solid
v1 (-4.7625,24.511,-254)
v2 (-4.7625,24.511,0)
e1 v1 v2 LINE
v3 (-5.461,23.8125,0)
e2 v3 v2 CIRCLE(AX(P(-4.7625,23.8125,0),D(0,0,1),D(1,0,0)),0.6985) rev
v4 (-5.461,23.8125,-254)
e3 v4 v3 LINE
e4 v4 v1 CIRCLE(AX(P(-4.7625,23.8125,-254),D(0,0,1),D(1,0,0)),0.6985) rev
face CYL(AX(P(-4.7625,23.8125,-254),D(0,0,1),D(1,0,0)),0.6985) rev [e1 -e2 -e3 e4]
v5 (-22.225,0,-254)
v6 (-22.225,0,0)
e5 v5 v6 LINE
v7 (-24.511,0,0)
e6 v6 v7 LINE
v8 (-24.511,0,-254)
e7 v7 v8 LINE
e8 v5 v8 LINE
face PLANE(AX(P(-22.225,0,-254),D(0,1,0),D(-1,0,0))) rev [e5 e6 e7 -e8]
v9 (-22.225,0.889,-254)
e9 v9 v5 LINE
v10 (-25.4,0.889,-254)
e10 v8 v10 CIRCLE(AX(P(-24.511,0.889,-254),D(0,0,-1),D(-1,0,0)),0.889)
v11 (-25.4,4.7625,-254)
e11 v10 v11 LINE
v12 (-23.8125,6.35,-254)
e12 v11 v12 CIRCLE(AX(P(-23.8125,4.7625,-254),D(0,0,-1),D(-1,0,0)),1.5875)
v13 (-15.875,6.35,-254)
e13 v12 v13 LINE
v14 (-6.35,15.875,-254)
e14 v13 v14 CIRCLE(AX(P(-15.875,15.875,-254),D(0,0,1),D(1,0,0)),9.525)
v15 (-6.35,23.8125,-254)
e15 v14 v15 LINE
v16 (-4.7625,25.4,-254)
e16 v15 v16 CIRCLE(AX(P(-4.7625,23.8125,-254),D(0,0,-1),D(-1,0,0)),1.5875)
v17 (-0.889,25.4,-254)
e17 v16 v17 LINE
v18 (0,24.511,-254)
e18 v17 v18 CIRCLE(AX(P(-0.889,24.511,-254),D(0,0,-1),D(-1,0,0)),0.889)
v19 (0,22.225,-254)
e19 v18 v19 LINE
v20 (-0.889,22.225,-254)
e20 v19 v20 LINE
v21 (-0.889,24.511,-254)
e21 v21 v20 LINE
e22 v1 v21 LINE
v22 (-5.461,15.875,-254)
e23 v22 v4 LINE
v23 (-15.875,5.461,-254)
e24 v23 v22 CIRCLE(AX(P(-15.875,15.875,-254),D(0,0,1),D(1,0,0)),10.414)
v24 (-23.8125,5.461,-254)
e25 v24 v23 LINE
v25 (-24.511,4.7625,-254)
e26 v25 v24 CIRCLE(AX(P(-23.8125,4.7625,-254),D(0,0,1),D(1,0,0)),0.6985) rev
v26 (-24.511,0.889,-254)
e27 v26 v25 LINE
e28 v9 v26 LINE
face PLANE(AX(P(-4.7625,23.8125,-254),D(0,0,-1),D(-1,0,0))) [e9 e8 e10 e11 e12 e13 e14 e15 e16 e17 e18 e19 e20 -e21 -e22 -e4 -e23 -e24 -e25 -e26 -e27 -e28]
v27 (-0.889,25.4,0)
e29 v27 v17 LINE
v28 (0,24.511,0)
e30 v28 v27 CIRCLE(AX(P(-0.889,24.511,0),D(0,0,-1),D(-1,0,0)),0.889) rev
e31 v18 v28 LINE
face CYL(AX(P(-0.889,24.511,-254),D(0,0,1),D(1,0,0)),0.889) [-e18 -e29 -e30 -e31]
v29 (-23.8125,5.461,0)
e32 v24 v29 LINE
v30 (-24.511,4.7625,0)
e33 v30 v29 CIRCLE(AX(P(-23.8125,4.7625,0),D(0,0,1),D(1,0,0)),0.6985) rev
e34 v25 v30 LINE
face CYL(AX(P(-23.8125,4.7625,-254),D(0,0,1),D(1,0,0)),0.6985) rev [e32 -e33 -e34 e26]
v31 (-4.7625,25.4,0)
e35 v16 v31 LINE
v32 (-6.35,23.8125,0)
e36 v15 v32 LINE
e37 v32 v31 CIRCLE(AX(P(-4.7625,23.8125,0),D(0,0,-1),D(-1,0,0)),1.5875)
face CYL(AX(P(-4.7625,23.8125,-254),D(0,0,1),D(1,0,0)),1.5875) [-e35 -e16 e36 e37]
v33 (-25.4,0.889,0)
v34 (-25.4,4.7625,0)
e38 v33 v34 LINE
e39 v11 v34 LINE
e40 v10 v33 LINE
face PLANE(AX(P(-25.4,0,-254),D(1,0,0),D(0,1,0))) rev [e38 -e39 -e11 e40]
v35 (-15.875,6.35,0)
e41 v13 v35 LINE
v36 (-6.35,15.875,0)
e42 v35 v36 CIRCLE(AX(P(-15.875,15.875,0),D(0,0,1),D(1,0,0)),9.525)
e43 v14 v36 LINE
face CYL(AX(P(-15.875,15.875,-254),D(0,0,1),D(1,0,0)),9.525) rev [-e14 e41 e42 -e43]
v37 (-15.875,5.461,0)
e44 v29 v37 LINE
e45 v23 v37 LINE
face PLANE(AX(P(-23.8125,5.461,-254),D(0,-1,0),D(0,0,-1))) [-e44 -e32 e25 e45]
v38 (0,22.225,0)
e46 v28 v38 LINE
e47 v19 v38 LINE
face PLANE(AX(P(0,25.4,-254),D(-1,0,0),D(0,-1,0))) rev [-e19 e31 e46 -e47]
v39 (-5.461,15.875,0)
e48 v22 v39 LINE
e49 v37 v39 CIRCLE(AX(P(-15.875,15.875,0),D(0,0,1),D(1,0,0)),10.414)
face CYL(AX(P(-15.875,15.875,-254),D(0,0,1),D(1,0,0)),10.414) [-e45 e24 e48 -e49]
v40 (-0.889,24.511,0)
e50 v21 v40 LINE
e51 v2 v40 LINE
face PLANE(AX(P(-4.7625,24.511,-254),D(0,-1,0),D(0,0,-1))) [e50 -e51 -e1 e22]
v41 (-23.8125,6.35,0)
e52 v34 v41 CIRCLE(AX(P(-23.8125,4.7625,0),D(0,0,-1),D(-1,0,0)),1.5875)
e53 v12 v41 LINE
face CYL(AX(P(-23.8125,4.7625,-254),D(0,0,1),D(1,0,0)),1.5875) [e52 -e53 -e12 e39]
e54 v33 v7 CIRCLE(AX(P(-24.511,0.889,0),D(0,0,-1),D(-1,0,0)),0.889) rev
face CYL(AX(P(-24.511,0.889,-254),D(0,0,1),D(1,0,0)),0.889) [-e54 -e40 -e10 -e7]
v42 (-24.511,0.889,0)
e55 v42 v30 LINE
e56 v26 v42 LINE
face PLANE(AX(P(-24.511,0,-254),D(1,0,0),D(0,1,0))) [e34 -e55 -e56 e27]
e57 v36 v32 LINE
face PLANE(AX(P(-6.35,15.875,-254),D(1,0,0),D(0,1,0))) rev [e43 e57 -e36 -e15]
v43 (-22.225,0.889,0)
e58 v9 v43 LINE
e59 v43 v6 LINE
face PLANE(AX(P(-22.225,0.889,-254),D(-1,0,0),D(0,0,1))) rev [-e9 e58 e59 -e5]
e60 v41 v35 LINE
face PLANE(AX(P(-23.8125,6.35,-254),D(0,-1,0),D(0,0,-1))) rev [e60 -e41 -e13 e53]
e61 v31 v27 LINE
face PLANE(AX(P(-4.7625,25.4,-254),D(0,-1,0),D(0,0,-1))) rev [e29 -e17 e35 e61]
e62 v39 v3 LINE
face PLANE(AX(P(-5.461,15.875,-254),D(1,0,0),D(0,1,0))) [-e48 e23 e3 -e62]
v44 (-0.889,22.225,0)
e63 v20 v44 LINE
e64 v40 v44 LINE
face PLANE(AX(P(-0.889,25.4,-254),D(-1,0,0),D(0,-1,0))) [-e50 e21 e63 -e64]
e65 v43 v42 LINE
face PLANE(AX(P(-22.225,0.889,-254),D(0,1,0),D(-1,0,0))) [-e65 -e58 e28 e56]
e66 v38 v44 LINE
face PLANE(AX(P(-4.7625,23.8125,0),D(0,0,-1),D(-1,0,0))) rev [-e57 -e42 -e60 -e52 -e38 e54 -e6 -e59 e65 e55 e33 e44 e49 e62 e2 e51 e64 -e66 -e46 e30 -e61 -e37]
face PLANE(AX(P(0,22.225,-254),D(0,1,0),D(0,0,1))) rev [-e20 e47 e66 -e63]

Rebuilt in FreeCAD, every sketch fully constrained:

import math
import FreeCAD as App
import Part
import Sketcher
from FreeCAD import Vector
Q = App.Units.Quantity


def edges_at(feature, points):
    """Names of the edges that pass closest to the given points."""
    edges = feature.Shape.Edges
    near = lambda p: min(range(len(edges)), key=lambda i: edges[i].distToShape(Part.Vertex(*p))[0])
    return sorted({f"Edge{near(p) + 1}" for p in points})

doc = App.newDocument("Part")
body = doc.addObject("PartDesign::Body", "Body")

# Sketch on XY plane
sketch1 = body.newObject("Sketcher::SketchObject", "Sketch")
sketch1.AttachmentSupport = (doc.getObject("XY_Plane"), [""])
sketch1.MapMode = "FlatFace"
sketch1.addGeometry([
    Part.LineSegment(Vector(-25.4, 0, 0), Vector(-22.2, 0, 0)),  # 0
    Part.LineSegment(Vector(-22.2, 0, 0), Vector(-22.2, 0.9, 0)),  # 1
    Part.LineSegment(Vector(-22.2, 0.9, 0), Vector(-24.5, 0.9, 0)),  # 2
    Part.LineSegment(Vector(-24.5, 0.9, 0), Vector(-24.5, 4.8, 0)),  # 3
    Part.ArcOfCircle(Part.Circle(Vector(-23.8, 4.8, 0), Vector(0, 0, 1), 0.7), math.radians(90), math.radians(180)),  # 4
    Part.LineSegment(Vector(-23.8, 5.5, 0), Vector(-15.9, 5.5, 0)),  # 5
    Part.ArcOfCircle(Part.Circle(Vector(-15.9, 15.9, 0), Vector(0, 0, 1), 10.4), math.radians(-90), math.radians(0)),  # 6
    Part.LineSegment(Vector(-5.5, 15.9, 0), Vector(-5.5, 23.8, 0)),  # 7
    Part.ArcOfCircle(Part.Circle(Vector(-4.8, 23.8, 0), Vector(0, 0, 1), 0.7), math.radians(90), math.radians(180)),  # 8
    Part.LineSegment(Vector(-4.8, 24.5, 0), Vector(-0.9, 24.5, 0)),  # 9
    Part.LineSegment(Vector(-0.9, 24.5, 0), Vector(-0.9, 22.2, 0)),  # 10
    Part.LineSegment(Vector(-0.9, 22.2, 0), Vector(0, 22.2, 0)),  # 11
    Part.LineSegment(Vector(0, 22.2, 0), Vector(0, 25.4, 0)),  # 12
    Part.LineSegment(Vector(0, 25.4, 0), Vector(-4.8, 25.4, 0)),  # 13
    Part.ArcOfCircle(Part.Circle(Vector(-4.8, 23.8, 0), Vector(0, 0, 1), 1.6), math.radians(90), math.radians(180)),  # 14
    Part.LineSegment(Vector(-6.3, 23.8, 0), Vector(-6.3, 15.9, 0)),  # 15
    Part.ArcOfCircle(Part.Circle(Vector(-15.9, 15.9, 0), Vector(0, 0, 1), 9.5), math.radians(-90), math.radians(0)),  # 16
    Part.LineSegment(Vector(-15.9, 6.3, 0), Vector(-23.8, 6.3, 0)),  # 17
    Part.ArcOfCircle(Part.Circle(Vector(-23.8, 4.8, 0), Vector(0, 0, 1), 1.6), math.radians(90), math.radians(180)),  # 18
    Part.LineSegment(Vector(-25.4, 4.8, 0), Vector(-25.4, 0, 0)),  # 19
], False)
sketch1.addConstraint([
    Sketcher.Constraint("Coincident", 0, 2, 1, 1),
    Sketcher.Constraint("Coincident", 1, 2, 2, 1),
    Sketcher.Constraint("Coincident", 2, 2, 3, 1),
    Sketcher.Constraint("Tangent", 3, 2, 4, 2),
    Sketcher.Constraint("Tangent", 4, 1, 5, 1),
    Sketcher.Constraint("Tangent", 5, 2, 6, 1),
    Sketcher.Constraint("Tangent", 6, 2, 7, 1),
    Sketcher.Constraint("Tangent", 7, 2, 8, 2),
    Sketcher.Constraint("Tangent", 8, 1, 9, 1),
    Sketcher.Constraint("Coincident", 9, 2, 10, 1),
    Sketcher.Constraint("Coincident", 10, 2, 11, 1),
    Sketcher.Constraint("Coincident", 11, 2, 12, 1),
    Sketcher.Constraint("Coincident", 12, 2, 13, 1),
    Sketcher.Constraint("Tangent", 13, 2, 14, 1),
    Sketcher.Constraint("Tangent", 14, 2, 15, 1),
    Sketcher.Constraint("Tangent", 15, 2, 16, 2),
    Sketcher.Constraint("Tangent", 16, 1, 17, 1),
    Sketcher.Constraint("Tangent", 17, 2, 18, 1),
    Sketcher.Constraint("Tangent", 18, 2, 19, 1),
    Sketcher.Constraint("Coincident", 19, 2, 0, 1),
    Sketcher.Constraint("Horizontal", 0),
    Sketcher.Constraint("Vertical", 1),
    Sketcher.Constraint("Horizontal", 2),
    Sketcher.Constraint("Vertical", 3),
    Sketcher.Constraint("Horizontal", 5),
    Sketcher.Constraint("Vertical", 7),
    Sketcher.Constraint("Horizontal", 9),
    Sketcher.Constraint("Vertical", 10),
    Sketcher.Constraint("Horizontal", 11),
    Sketcher.Constraint("Vertical", 12),
    Sketcher.Constraint("Horizontal", 13),
    Sketcher.Constraint("Vertical", 15),
    Sketcher.Constraint("Horizontal", 17),
    Sketcher.Constraint("Vertical", 19),
    Sketcher.Constraint("Coincident", 14, 3, 8, 3),
    Sketcher.Constraint("Coincident", 16, 3, 6, 3),
    Sketcher.Constraint("Coincident", 18, 3, 4, 3),
    Sketcher.Constraint("Equal", 4, 8),
    Sketcher.Constraint("PointOnObject", 0, 2, -1),
    Sketcher.Constraint("PointOnObject", 11, 2, -2),
    Sketcher.Constraint("Equal", 11, 1),
    Sketcher.Constraint("Equal", 9, 3),
    Sketcher.Constraint("Equal", 17, 7),
    Sketcher.Constraint("Equal", 2, 10),
    Sketcher.Constraint("Radius", 6, Q("0.41 in")),
    Sketcher.Constraint("DistanceY", -1, 1, 12, 2, Q("1 in")),
    Sketcher.Constraint("Radius", 14, Q("0.0625 in")),
    Sketcher.Constraint("Radius", 16, Q("0.375 in")),
    Sketcher.Constraint("DistanceX", 2, 2, 2, 1, Q("0.09 in")),
    Sketcher.Constraint("DistanceX", 5, 1, 5, 2, Q("0.3125 in")),
    Sketcher.Constraint("DistanceX", 11, 1, 11, 2, Q("0.035 in")),
])
pad1 = body.newObject("PartDesign::Pad", "Pad")
pad1.Profile = sketch1
pad1.Length = Q("10 in")
pad1.Reversed = True
doc.recompute()

fillet = body.newObject("PartDesign::Fillet", "Fillet")
fillet.Base = (pad1, edges_at(pad1, [(-25.4, 0, -127), (0, 25.4, -127)]))
fillet.Radius = Q("0.035 in")

doc.recompute()
